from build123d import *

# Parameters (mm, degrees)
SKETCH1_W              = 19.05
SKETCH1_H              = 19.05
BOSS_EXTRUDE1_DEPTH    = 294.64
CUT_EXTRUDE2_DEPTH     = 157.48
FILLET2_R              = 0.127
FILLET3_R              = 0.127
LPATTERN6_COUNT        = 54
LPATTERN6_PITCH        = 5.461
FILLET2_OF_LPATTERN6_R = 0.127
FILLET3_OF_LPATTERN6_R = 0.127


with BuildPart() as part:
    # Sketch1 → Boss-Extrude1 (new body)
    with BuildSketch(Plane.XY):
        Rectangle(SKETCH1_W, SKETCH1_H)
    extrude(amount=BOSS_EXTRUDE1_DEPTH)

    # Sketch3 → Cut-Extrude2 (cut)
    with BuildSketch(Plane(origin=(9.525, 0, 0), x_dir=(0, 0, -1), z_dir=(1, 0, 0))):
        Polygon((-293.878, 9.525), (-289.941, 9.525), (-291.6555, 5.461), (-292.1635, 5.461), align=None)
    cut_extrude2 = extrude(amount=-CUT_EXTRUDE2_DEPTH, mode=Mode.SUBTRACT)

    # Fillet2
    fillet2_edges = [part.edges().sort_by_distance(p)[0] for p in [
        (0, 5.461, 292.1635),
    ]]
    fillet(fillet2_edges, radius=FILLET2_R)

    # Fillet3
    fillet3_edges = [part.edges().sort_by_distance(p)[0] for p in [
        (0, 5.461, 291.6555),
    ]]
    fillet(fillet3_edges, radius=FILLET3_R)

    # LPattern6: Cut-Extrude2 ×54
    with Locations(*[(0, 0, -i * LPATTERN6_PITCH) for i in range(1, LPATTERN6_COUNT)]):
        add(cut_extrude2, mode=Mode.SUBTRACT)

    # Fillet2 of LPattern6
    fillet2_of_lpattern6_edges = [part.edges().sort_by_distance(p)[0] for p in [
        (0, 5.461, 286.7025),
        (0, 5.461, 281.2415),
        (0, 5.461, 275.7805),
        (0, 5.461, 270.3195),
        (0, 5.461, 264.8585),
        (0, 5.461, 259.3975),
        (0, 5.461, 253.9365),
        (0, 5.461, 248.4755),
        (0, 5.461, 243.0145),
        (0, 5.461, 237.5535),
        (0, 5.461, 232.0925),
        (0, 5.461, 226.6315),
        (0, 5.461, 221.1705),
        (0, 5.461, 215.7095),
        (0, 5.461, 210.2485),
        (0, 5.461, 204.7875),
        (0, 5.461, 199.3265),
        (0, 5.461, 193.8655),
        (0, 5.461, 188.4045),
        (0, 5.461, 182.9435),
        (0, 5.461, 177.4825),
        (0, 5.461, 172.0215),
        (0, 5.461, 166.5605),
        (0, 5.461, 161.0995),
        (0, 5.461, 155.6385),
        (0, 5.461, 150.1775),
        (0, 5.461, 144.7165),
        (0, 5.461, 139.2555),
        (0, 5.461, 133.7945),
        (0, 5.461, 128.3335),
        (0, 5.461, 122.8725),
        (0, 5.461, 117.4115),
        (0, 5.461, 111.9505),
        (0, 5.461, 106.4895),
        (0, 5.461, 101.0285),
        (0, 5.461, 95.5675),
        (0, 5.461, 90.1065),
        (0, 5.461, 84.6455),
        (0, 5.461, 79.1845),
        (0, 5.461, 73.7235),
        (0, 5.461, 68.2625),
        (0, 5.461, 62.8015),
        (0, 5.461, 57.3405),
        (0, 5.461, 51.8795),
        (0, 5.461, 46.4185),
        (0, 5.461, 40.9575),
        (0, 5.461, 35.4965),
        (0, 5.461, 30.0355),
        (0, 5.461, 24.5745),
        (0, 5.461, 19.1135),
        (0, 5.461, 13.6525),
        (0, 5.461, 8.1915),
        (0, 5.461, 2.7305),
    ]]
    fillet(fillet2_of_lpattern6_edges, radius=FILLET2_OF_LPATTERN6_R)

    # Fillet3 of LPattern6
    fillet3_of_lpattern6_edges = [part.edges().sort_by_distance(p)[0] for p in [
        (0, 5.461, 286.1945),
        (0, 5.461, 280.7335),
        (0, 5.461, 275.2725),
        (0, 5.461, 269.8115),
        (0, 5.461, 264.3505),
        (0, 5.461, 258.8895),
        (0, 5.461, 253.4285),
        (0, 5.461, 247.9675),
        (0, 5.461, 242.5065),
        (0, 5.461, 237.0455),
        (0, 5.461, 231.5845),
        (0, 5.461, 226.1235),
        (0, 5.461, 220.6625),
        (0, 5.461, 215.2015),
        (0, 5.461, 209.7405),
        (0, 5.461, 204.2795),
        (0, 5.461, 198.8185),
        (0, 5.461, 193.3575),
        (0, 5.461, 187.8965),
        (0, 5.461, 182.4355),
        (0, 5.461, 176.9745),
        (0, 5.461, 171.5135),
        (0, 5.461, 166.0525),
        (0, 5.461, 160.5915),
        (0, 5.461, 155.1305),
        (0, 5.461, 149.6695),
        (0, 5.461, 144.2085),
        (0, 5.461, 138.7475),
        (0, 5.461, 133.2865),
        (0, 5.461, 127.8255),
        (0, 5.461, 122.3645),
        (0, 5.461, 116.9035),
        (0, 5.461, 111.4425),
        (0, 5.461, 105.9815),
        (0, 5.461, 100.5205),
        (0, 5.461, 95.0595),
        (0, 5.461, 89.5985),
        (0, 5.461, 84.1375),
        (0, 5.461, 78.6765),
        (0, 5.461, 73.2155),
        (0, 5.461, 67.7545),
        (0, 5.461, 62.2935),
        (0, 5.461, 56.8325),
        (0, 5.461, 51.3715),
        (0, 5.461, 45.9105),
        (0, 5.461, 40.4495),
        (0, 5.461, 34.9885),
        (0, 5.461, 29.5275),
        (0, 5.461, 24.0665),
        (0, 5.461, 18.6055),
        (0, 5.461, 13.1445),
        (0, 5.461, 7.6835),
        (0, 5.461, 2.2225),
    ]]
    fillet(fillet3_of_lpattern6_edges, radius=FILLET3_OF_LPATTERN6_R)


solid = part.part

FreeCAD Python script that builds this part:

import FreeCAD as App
import Part
import Sketcher
Q = App.Units.Quantity


def edges_at(feature, points):
    """Names of the edges that pass closest to the given points."""
    edges = feature.Shape.Edges
    near = lambda p: min(range(len(edges)), key=lambda i: edges[i].distToShape(Part.Vertex(*p))[0])
    return sorted({f"Edge{near(p) + 1}" for p in points})


def add_polygon(sketch, points):
    """Adds a closed chain of lines whose ends are joined by coincident constraints."""
    first, n = sketch.GeometryCount, len(points)
    for a, b in zip(points, points[1:] + points[:1]):
        sketch.addGeometry(Part.LineSegment(App.Vector(*a, 0), App.Vector(*b, 0)), False)
    for i in range(n):
        sketch.addConstraint(Sketcher.Constraint("Coincident", first + i, 2, first + (i + 1) % n, 1))

doc = App.newDocument("Part")
body = doc.addObject("PartDesign::Body", "Body")

sketch1 = doc.addObject("Sketcher::SketchObject", "Sketch")
body.addObject(sketch1)
sketch1.AttachmentSupport = (doc.XY_Plane, [""])
sketch1.MapMode = "FlatFace"
add_polygon(sketch1, [(-9.525, 9.525), (-9.525, -9.525), (9.525, -9.525), (9.525, 9.525)])
sketch1.addConstraint(Sketcher.Constraint("Vertical", 0))
sketch1.addConstraint(Sketcher.Constraint("Horizontal", 1))
sketch1.addConstraint(Sketcher.Constraint("Vertical", 2))
sketch1.addConstraint(Sketcher.Constraint("Horizontal", 3))
sketch1.addConstraint(Sketcher.Constraint("Symmetric", 0, 2, 2, 2, -1, 1))
sketch1.addConstraint(Sketcher.Constraint("Equal", 3, 0))
sketch1.addConstraint(Sketcher.Constraint("DistanceX", 1, 1, 1, 2, Q("0.75 in")))
pad1 = doc.addObject("PartDesign::Pad", "Pad")
body.addObject(pad1)
pad1.Profile = sketch1
pad1.Length = Q("11.6 in")

sketch2 = doc.addObject("Sketcher::SketchObject", "Sketch001")
body.addObject(sketch2)
sketch2.AttachmentSupport = (doc.YZ_Plane, [""])
sketch2.MapMode = "FlatFace"
sketch2.AttachmentOffset = App.Placement(App.Vector(0, 0, 0.375 * 25.4), App.Rotation())
add_polygon(sketch2, [(9.525, 289.941), (9.525, 293.878), (5.461, 292.1635), (5.461, 291.6555)])
sketch2.addConstraint(Sketcher.Constraint("Vertical", 0))
sketch2.addConstraint(Sketcher.Constraint("Vertical", 2))
sketch2.addConstraint(Sketcher.Constraint("Equal", 1, 3))
sketch2.addConstraint(Sketcher.Constraint("DistanceY", 2, 2, 2, 1, Q("0.02 in")))
sketch2.addConstraint(Sketcher.Constraint("DistanceY", 0, 1, 0, 2, Q("0.155 in")))
sketch2.addConstraint(Sketcher.Constraint("DistanceY", -1, 1, 0, 2, Q("11.57 in")))
sketch2.addConstraint(Sketcher.Constraint("DistanceX", 1, 2, 0, 2, Q("0.16 in")))
sketch2.addConstraint(Sketcher.Constraint("DistanceX", -1, 1, 0, 2, Q("0.375 in")))
pocket1 = doc.addObject("PartDesign::Pocket", "Pocket")
body.addObject(pocket1)
pocket1.Profile = sketch2
pocket1.Length = Q("6.2 in")
doc.recompute()

fillet = doc.addObject("PartDesign::Fillet", "Fillet")
body.addObject(fillet)
fillet.Base = (pocket1, edges_at(pocket1, [(0, 5.461, 292.163)]))
fillet.Radius = Q("0.005 in")
doc.recompute()

fillet2 = doc.addObject("PartDesign::Fillet", "Fillet001")
body.addObject(fillet2)
fillet2.Base = (fillet, edges_at(fillet, [(0, 5.461, 291.656)]))
fillet2.Radius = Q("0.005 in")
doc.recompute()

linearpattern = doc.addObject("PartDesign::LinearPattern", "LinearPattern")
body.addObject(linearpattern)
linearpattern.Originals = [pocket1]
linearpattern.Direction = (doc.Z_Axis, [""])
linearpattern.Mode = "offset"
linearpattern.Offset = Q("0.215 in")
linearpattern.Occurrences = 54
linearpattern.Reversed = True
body.Tip = linearpattern
doc.recompute()

fillet3 = doc.addObject("PartDesign::Fillet", "Fillet002")
body.addObject(fillet3)
fillet3.Base = (linearpattern, edges_at(linearpattern, [
    (0, 5.461, 286.702),
    (0, 5.461, 281.241),
    (0, 5.461, 275.781),
    (0, 5.461, 270.32),
    (0, 5.461, 264.858),
    (0, 5.461, 259.397),
    (0, 5.461, 253.936),
    (0, 5.461, 248.476),
    (0, 5.461, 243.014),
    (0, 5.461, 237.554),
    (0, 5.461, 232.093),
    (0, 5.461, 226.631),
    (0, 5.461, 221.171),
    (0, 5.461, 215.709),
    (0, 5.461, 210.249),
    (0, 5.461, 204.787),
    (0, 5.461, 199.327),
    (0, 5.461, 193.865),
    (0, 5.461, 188.405),
    (0, 5.461, 182.944),
    (0, 5.461, 177.482),
    (0, 5.461, 172.022),
    (0, 5.461, 166.56),
    (0, 5.461, 161.1),
    (0, 5.461, 155.638),
    (0, 5.461, 150.178),
    (0, 5.461, 144.716),
    (0, 5.461, 139.256),
    (0, 5.461, 133.794),
    (0, 5.461, 128.333),
    (0, 5.461, 122.873),
    (0, 5.461, 117.412),
    (0, 5.461, 111.951),
    (0, 5.461, 106.49),
    (0, 5.461, 101.028),
    (0, 5.461, 95.567),
    (0, 5.461, 90.106),
    (0, 5.461, 84.645),
    (0, 5.461, 79.184),
    (0, 5.461, 73.724),
    (0, 5.461, 68.263),
    (0, 5.461, 62.801),
    (0, 5.461, 57.34),
    (0, 5.461, 51.88),
    (0, 5.461, 46.419),
    (0, 5.461, 40.958),
    (0, 5.461, 35.496),
    (0, 5.461, 30.035),
    (0, 5.461, 24.575),
    (0, 5.461, 19.113),
    (0, 5.461, 13.652),
    (0, 5.461, 8.191),
    (0, 5.461, 2.731),
]))
fillet3.Radius = Q("0.005 in")
doc.recompute()

fillet4 = doc.addObject("PartDesign::Fillet", "Fillet003")
body.addObject(fillet4)
fillet4.Base = (fillet3, edges_at(fillet3, [
    (0, 5.461, 286.195),
    (0, 5.461, 280.733),
    (0, 5.461, 275.272),
    (0, 5.461, 269.812),
    (0, 5.461, 264.351),
    (0, 5.461, 258.889),
    (0, 5.461, 253.429),
    (0, 5.461, 247.968),
    (0, 5.461, 242.506),
    (0, 5.461, 237.046),
    (0, 5.461, 231.584),
    (0, 5.461, 226.124),
    (0, 5.461, 220.662),
    (0, 5.461, 215.202),
    (0, 5.461, 209.74),
    (0, 5.461, 204.28),
    (0, 5.461, 198.819),
    (0, 5.461, 193.357),
    (0, 5.461, 187.897),
    (0, 5.461, 182.435),
    (0, 5.461, 176.975),
    (0, 5.461, 171.513),
    (0, 5.461, 166.053),
    (0, 5.461, 160.591),
    (0, 5.461, 155.131),
    (0, 5.461, 149.669),
    (0, 5.461, 144.208),
    (0, 5.461, 138.748),
    (0, 5.461, 133.286),
    (0, 5.461, 127.826),
    (0, 5.461, 122.365),
    (0, 5.461, 116.903),
    (0, 5.461, 111.442),
    (0, 5.461, 105.981),
    (0, 5.461, 100.52),
    (0, 5.461, 95.059),
    (0, 5.461, 89.599),
    (0, 5.461, 84.138),
    (0, 5.461, 78.677),
    (0, 5.461, 73.216),
    (0, 5.461, 67.754),
    (0, 5.461, 62.294),
    (0, 5.461, 56.833),
    (0, 5.461, 51.371),
    (0, 5.461, 45.91),
    (0, 5.461, 40.45),
    (0, 5.461, 34.989),
    (0, 5.461, 29.527),
    (0, 5.461, 24.067),
    (0, 5.461, 18.605),
    (0, 5.461, 13.145),
    (0, 5.461, 7.684),
    (0, 5.461, 2.223),
]))
fillet4.Radius = Q("0.005 in")

doc.recompute()
